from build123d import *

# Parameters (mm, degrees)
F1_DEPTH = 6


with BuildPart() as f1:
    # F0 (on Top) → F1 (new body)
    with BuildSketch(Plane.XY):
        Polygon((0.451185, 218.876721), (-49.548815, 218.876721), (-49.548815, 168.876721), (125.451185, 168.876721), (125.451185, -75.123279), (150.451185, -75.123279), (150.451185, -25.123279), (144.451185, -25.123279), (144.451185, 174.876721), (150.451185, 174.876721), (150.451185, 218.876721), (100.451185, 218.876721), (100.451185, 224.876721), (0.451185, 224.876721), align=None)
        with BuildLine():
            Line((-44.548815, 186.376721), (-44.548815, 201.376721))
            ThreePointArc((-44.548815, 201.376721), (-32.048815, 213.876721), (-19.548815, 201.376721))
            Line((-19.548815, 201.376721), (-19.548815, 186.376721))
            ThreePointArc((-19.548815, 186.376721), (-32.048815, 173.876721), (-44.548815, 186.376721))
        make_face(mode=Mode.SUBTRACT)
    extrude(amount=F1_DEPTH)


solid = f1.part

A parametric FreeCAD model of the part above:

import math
import FreeCAD as App
import Part
import Sketcher
from FreeCAD import Vector

doc = App.newDocument("Part")
body = doc.addObject("PartDesign::Body", "Body")

sketch1 = doc.addObject("Sketcher::SketchObject", "Sketch")
body.addObject(sketch1)
sketch1.AttachmentSupport = (doc.XY_Plane, [""])
sketch1.MapMode = "FlatFace"
sketch1.addGeometry([
    Part.LineSegment(Vector(0.451185, 218.876721, 0), Vector(-49.548815, 218.876721, 0)),
    Part.LineSegment(Vector(-49.548815, 218.876721, 0), Vector(-49.548815, 168.876721, 0)),
    Part.LineSegment(Vector(-49.548815, 168.876721, 0), Vector(125.451185, 168.876721, 0)),
    Part.LineSegment(Vector(125.451185, 168.876721, 0), Vector(125.451185, -75.123279, 0)),
    Part.LineSegment(Vector(125.451185, -75.123279, 0), Vector(150.451185, -75.123279, 0)),
    Part.LineSegment(Vector(150.451185, -75.123279, 0), Vector(150.451185, -25.123279, 0)),
    Part.LineSegment(Vector(150.451185, -25.123279, 0), Vector(144.451185, -25.123279, 0)),
    Part.LineSegment(Vector(144.451185, -25.123279, 0), Vector(144.451185, 174.876721, 0)),
    Part.LineSegment(Vector(144.451185, 174.876721, 0), Vector(150.451185, 174.876721, 0)),
    Part.LineSegment(Vector(150.451185, 174.876721, 0), Vector(150.451185, 218.876721, 0)),
    Part.LineSegment(Vector(150.451185, 218.876721, 0), Vector(100.451185, 218.876721, 0)),
    Part.LineSegment(Vector(100.451185, 218.876721, 0), Vector(100.451185, 224.876721, 0)),
    Part.LineSegment(Vector(100.451185, 224.876721, 0), Vector(0.451185, 224.876721, 0)),
    Part.LineSegment(Vector(0.451185, 224.876721, 0), Vector(0.451185, 218.876721, 0)),
    Part.ArcOfCircle(Part.Circle(Vector(-32.048815, 186.376721, 0), Vector(0, 0, 1), 12.5), math.radians(180), math.radians(360)),
    Part.LineSegment(Vector(-44.548815, 186.376721, 0), Vector(-44.548815, 201.376721, 0)),
    Part.ArcOfCircle(Part.Circle(Vector(-32.048815, 201.376721, 0), Vector(0, 0, 1), 12.5), math.radians(0), math.radians(180)),
    Part.LineSegment(Vector(-19.548815, 201.376721, 0), Vector(-19.548815, 186.376721, 0)),
], False)
sketch1.addConstraint([
    Sketcher.Constraint("Coincident", 0, 2, 1, 1),
    Sketcher.Constraint("Coincident", 1, 2, 2, 1),
    Sketcher.Constraint("Coincident", 2, 2, 3, 1),
    Sketcher.Constraint("Coincident", 3, 2, 4, 1),
    Sketcher.Constraint("Coincident", 4, 2, 5, 1),
    Sketcher.Constraint("Coincident", 5, 2, 6, 1),
    Sketcher.Constraint("Coincident", 6, 2, 7, 1),
    Sketcher.Constraint("Coincident", 7, 2, 8, 1),
    Sketcher.Constraint("Coincident", 8, 2, 9, 1),
    Sketcher.Constraint("Coincident", 9, 2, 10, 1),
    Sketcher.Constraint("Coincident", 10, 2, 11, 1),
    Sketcher.Constraint("Coincident", 11, 2, 12, 1),
    Sketcher.Constraint("Coincident", 12, 2, 13, 1),
    Sketcher.Constraint("Coincident", 13, 2, 0, 1),
    Sketcher.Constraint("Tangent", 14, 1, 15, 1),
    Sketcher.Constraint("Tangent", 15, 2, 16, 2),
    Sketcher.Constraint("Tangent", 16, 1, 17, 1),
    Sketcher.Constraint("Tangent", 17, 2, 14, 2),
    Sketcher.Constraint("Horizontal", 0),
    Sketcher.Constraint("Vertical", 1),
    Sketcher.Constraint("Horizontal", 2),
    Sketcher.Constraint("Vertical", 3),
    Sketcher.Constraint("Horizontal", 4),
    Sketcher.Constraint("Vertical", 5),
    Sketcher.Constraint("Horizontal", 6),
    Sketcher.Constraint("Vertical", 7),
    Sketcher.Constraint("Horizontal", 8),
    Sketcher.Constraint("Vertical", 9),
    Sketcher.Constraint("Horizontal", 10),
    Sketcher.Constraint("Vertical", 11),
    Sketcher.Constraint("Horizontal", 12),
    Sketcher.Constraint("Vertical", 13),
    Sketcher.Constraint("Vertical", 15),
    Sketcher.Constraint("Vertical", 17),
    Sketcher.Constraint("Horizontal", 0, 2, 9, 2),
    Sketcher.Constraint("Vertical", 5, 2, 8, 2),
    Sketcher.Constraint("Equal", 0, 10),
    Sketcher.Constraint("Equal", 10, 1),
    Sketcher.Constraint("Equal", 1, 5),
    Sketcher.Constraint("Equal", 8, 11),
    Sketcher.Constraint("Radius", 14, 12.5),
    Sketcher.Constraint("DistanceX", 0, 2, 0, 1, 50.0),
    Sketcher.Constraint("DistanceX", 2, 1, 2, 2, 175.0),
    Sketcher.Constraint("DistanceX", 4, 1, 4, 2, 25.0),
    Sketcher.Constraint("DistanceX", 6, 2, 6, 1, 6.0),
    Sketcher.Constraint("DistanceY", 3, 2, 3, 1, 244.0),
    Sketcher.Constraint("DistanceY", 7, 1, 7, 2, 200.0),
    Sketcher.Constraint("DistanceY", 15, 1, 15, 2, 15.0),
    Sketcher.Constraint("DistanceX", 1, 2, 14, 1, 5.0),
    Sketcher.Constraint("DistanceY", 16, 3, 0, 2, 17.5),
    Sketcher.Constraint("DistanceY", -1, 1, 14, 3, 186.376721),
    Sketcher.Constraint("DistanceX", 14, 3, -1, 1, 32.048815),
])
pad1 = doc.addObject("PartDesign::Pad", "Pad")
body.addObject(pad1)
pad1.Profile = sketch1
pad1.Length = 6

doc.recompute()
